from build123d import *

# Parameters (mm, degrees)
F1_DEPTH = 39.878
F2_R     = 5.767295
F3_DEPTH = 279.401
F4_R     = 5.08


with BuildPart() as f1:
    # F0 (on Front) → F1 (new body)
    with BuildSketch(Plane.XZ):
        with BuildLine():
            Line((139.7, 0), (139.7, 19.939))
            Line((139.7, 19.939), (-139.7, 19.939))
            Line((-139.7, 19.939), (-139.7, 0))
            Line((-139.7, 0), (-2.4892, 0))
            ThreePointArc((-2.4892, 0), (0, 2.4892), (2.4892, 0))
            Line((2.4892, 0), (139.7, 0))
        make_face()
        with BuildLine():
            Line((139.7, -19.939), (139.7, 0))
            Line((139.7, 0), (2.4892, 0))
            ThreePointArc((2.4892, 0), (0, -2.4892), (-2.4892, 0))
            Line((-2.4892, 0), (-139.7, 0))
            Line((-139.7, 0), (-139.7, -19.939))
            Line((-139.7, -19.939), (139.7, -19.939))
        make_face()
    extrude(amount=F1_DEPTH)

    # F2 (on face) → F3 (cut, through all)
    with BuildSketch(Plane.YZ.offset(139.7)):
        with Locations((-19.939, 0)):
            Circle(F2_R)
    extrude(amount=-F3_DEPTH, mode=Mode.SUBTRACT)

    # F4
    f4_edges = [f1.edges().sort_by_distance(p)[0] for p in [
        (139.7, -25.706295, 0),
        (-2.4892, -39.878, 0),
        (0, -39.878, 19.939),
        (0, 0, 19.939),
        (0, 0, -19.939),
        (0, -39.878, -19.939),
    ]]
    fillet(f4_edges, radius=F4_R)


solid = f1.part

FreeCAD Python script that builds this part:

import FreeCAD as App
import Part
import Sketcher
Q = App.Units.Quantity


def edges_at(feature, points):
    """Names of the edges that pass closest to the given points."""
    edges = feature.Shape.Edges
    near = lambda p: min(range(len(edges)), key=lambda i: edges[i].distToShape(Part.Vertex(*p))[0])
    return sorted({f"Edge{near(p) + 1}" for p in points})

doc = App.newDocument("Part")
body = doc.addObject("PartDesign::Body", "Body")

sketch1 = doc.addObject("Sketcher::SketchObject", "Sketch")
body.addObject(sketch1)
sketch1.AttachmentSupport = (doc.XZ_Plane, [""])
sketch1.MapMode = "FlatFace"
sketch1.addGeometry(Part.LineSegment(App.Vector(139.7, 19.939, 0), App.Vector(-139.7, 19.939, 0)), False)
sketch1.addGeometry(Part.LineSegment(App.Vector(-139.7, 19.939, 0), App.Vector(-139.7, -19.939, 0)), False)
sketch1.addGeometry(Part.LineSegment(App.Vector(-139.7, -19.939, 0), App.Vector(139.7, -19.939, 0)), False)
sketch1.addGeometry(Part.LineSegment(App.Vector(139.7, -19.939, 0), App.Vector(139.7, 19.939, 0)), False)
sketch1.addGeometry(Part.Circle(App.Vector(0, 0, 0), App.Vector(0, 0, 1), 2.4892), False)
sketch1.addConstraint(Sketcher.Constraint("Coincident", 0, 2, 1, 1))
sketch1.addConstraint(Sketcher.Constraint("Coincident", 1, 2, 2, 1))
sketch1.addConstraint(Sketcher.Constraint("Coincident", 2, 2, 3, 1))
sketch1.addConstraint(Sketcher.Constraint("Coincident", 3, 2, 0, 1))
sketch1.addConstraint(Sketcher.Constraint("Horizontal", 0))
sketch1.addConstraint(Sketcher.Constraint("Vertical", 1))
sketch1.addConstraint(Sketcher.Constraint("Horizontal", 2))
sketch1.addConstraint(Sketcher.Constraint("Vertical", 3))
sketch1.addConstraint(Sketcher.Constraint("Coincident", 4, 3, -1, 1))
sketch1.addConstraint(Sketcher.Constraint("Symmetric", 0, 2, 2, 2, -1, 1))
sketch1.addConstraint(Sketcher.Constraint("DistanceX", 0, 2, 0, 1, Q("11 in")))
sketch1.addConstraint(Sketcher.Constraint("Diameter", 4, Q("0.196 in")))
sketch1.addConstraint(Sketcher.Constraint("DistanceY", 1, 2, 1, 1, Q("1.57 in")))
pad1 = doc.addObject("PartDesign::Pad", "Pad")
body.addObject(pad1)
pad1.Profile = sketch1
pad1.Length = Q("1.57 in")

sketch2 = doc.addObject("Sketcher::SketchObject", "Sketch001")
body.addObject(sketch2)
sketch2.AttachmentSupport = (doc.YZ_Plane, [""])
sketch2.MapMode = "FlatFace"
sketch2.AttachmentOffset = App.Placement(App.Vector(0, 0, 5.5 * 25.4), App.Rotation())
sketch2.addGeometry(Part.Circle(App.Vector(-19.939, 0, 0), App.Vector(0, 0, 1), 5.767295), False)
sketch2.addConstraint(Sketcher.Constraint("PointOnObject", 0, 3, -1))
sketch2.addConstraint(Sketcher.Constraint("Diameter", 0, 11.53459))
sketch2.addConstraint(Sketcher.Constraint("DistanceX", 0, 3, -1, 1, Q("0.785 in")))
pocket1 = doc.addObject("PartDesign::Pocket", "Pocket")
body.addObject(pocket1)
pocket1.Profile = sketch2
pocket1.Type = "ThroughAll"
doc.recompute()

fillet = doc.addObject("PartDesign::Fillet", "Fillet")
body.addObject(fillet)
fillet.Base = (pocket1, edges_at(pocket1, [
    (139.7, -25.706, 0),
    (-2.489, -39.878, 0),
    (0, -39.878, 19.939),
    (0, 0, 19.939),
    (0, 0, -19.939),
    (0, -39.878, -19.939),
]))
fillet.Radius = Q("0.2 in")

doc.recompute()
